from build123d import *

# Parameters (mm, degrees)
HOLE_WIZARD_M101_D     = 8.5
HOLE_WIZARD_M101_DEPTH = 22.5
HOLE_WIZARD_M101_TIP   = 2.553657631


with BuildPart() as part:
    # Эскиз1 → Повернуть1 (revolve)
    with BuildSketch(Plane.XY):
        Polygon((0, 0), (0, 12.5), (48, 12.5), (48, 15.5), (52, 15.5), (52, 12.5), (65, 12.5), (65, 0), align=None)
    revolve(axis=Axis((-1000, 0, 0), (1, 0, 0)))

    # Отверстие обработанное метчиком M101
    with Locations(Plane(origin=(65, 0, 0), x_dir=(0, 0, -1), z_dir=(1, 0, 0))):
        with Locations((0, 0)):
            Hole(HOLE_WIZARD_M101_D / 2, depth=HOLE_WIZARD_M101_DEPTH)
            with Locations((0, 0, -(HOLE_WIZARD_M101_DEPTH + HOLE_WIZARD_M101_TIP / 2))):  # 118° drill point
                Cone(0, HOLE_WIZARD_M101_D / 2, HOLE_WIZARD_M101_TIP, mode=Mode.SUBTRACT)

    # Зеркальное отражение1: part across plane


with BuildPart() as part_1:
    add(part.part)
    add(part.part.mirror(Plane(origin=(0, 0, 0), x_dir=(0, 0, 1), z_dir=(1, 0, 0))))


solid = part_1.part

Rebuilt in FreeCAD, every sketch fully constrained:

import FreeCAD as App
import Part
import Sketcher

V = App.Vector

doc = App.newDocument("Part")
body = doc.addObject("PartDesign::Body", "Body")

# Sketch on XY plane
sketch1 = doc.addObject("Sketcher::SketchObject", "Sketch")
body.addObject(sketch1)
sketch1.AttachmentSupport = (doc.XY_Plane, [""])
sketch1.MapMode = "FlatFace"
sketch1.addGeometry([
    Part.LineSegment(V(0, 12.5, 0), V(0, 0, 0)),  # 0
    Part.LineSegment(V(0, 0, 0), V(65, 0, 0)),  # 1
    Part.LineSegment(V(65, 0, 0), V(65, 12.5, 0)),  # 2
    Part.LineSegment(V(65, 12.5, 0), V(52, 12.5, 0)),  # 3
    Part.LineSegment(V(52, 12.5, 0), V(52, 15.5, 0)),  # 4
    Part.LineSegment(V(52, 15.5, 0), V(48, 15.5, 0)),  # 5
    Part.LineSegment(V(48, 15.5, 0), V(48, 12.5, 0)),  # 6
    Part.LineSegment(V(48, 12.5, 0), V(0, 12.5, 0)),  # 7
], False)
sketch1.addConstraint([
    Sketcher.Constraint("Coincident", 0, 2, 1, 1),
    Sketcher.Constraint("Coincident", 1, 2, 2, 1),
    Sketcher.Constraint("Coincident", 2, 2, 3, 1),
    Sketcher.Constraint("Coincident", 3, 2, 4, 1),
    Sketcher.Constraint("Coincident", 4, 2, 5, 1),
    Sketcher.Constraint("Coincident", 5, 2, 6, 1),
    Sketcher.Constraint("Coincident", 6, 2, 7, 1),
    Sketcher.Constraint("Coincident", 7, 2, 0, 1),
    Sketcher.Constraint("Vertical", 0),
    Sketcher.Constraint("Horizontal", 1),
    Sketcher.Constraint("Vertical", 2),
    Sketcher.Constraint("Horizontal", 3),
    Sketcher.Constraint("Vertical", 4),
    Sketcher.Constraint("Horizontal", 5),
    Sketcher.Constraint("Vertical", 6),
    Sketcher.Constraint("Horizontal", 7),
    Sketcher.Constraint("Coincident", 0, 2, -1, 1),
    Sketcher.Constraint("Horizontal", 3, 2, 6, 2),
    Sketcher.Constraint("DistanceX", 1, 1, 1, 2, 65.0),
    Sketcher.Constraint("DistanceX", 3, 2, 3, 1, 13.0),
    Sketcher.Constraint("DistanceX", 5, 2, 5, 1, 4.0),
    Sketcher.Constraint("DistanceY", 4, 1, 4, 2, 3.0),
    Sketcher.Constraint("DistanceY", 0, 2, 0, 1, 12.5),
])
revolution = doc.addObject("PartDesign::Revolution", "Revolution")
body.addObject(revolution)
revolution.Profile = sketch1
revolution.ReferenceAxis = (sketch1, ["H_Axis"])
revolution.Angle = 360

# Sketch on YZ plane
sketch2 = doc.addObject("Sketcher::SketchObject", "Sketch001")
body.addObject(sketch2)
sketch2.AttachmentSupport = (doc.YZ_Plane, [""])
sketch2.MapMode = "FlatFace"
sketch2.AttachmentOffset = App.Placement(V(0, 0, 65), App.Rotation())
sketch2.addGeometry(Part.Circle(V(0, 0, 0), V(0, 0, 1), 4.2), False)
sketch2.addConstraint([
    Sketcher.Constraint("Coincident", 0, 3, -1, 1),
    Sketcher.Constraint("Diameter", 0, 8.5),
])
doc.recompute()
hole = doc.addObject("PartDesign::Hole", "Hole")
body.addObject(hole)
hole.Profile = sketch2
hole.ThreadType = "None"
hole.Diameter = 8.5
hole.DepthType = "Dimension"
hole.Depth = 22.5
hole.DrillPoint = "Angled"
hole.DrillPointAngle = 118
body2 = doc.addObject("PartDesign::Body", "Body001")
doc.recompute()

body2.BaseFeature = body
doc.recompute()

mirroring = doc.addObject("Part::Mirroring", "Mirroring")
mirroring.Source = body
mirroring.Base = V(0, 0, 0)
mirroring.Normal = V(1, 0, 0)
body3 = doc.addObject("PartDesign::Body", "Body002")
body3.BaseFeature = mirroring
boolean = doc.addObject("PartDesign::Boolean", "Boolean")
body2.addObject(boolean)
boolean.Type = "Fuse"
boolean.addObjects([body3])
doc.recompute()
mirroring.Visibility = False

doc.recompute()
